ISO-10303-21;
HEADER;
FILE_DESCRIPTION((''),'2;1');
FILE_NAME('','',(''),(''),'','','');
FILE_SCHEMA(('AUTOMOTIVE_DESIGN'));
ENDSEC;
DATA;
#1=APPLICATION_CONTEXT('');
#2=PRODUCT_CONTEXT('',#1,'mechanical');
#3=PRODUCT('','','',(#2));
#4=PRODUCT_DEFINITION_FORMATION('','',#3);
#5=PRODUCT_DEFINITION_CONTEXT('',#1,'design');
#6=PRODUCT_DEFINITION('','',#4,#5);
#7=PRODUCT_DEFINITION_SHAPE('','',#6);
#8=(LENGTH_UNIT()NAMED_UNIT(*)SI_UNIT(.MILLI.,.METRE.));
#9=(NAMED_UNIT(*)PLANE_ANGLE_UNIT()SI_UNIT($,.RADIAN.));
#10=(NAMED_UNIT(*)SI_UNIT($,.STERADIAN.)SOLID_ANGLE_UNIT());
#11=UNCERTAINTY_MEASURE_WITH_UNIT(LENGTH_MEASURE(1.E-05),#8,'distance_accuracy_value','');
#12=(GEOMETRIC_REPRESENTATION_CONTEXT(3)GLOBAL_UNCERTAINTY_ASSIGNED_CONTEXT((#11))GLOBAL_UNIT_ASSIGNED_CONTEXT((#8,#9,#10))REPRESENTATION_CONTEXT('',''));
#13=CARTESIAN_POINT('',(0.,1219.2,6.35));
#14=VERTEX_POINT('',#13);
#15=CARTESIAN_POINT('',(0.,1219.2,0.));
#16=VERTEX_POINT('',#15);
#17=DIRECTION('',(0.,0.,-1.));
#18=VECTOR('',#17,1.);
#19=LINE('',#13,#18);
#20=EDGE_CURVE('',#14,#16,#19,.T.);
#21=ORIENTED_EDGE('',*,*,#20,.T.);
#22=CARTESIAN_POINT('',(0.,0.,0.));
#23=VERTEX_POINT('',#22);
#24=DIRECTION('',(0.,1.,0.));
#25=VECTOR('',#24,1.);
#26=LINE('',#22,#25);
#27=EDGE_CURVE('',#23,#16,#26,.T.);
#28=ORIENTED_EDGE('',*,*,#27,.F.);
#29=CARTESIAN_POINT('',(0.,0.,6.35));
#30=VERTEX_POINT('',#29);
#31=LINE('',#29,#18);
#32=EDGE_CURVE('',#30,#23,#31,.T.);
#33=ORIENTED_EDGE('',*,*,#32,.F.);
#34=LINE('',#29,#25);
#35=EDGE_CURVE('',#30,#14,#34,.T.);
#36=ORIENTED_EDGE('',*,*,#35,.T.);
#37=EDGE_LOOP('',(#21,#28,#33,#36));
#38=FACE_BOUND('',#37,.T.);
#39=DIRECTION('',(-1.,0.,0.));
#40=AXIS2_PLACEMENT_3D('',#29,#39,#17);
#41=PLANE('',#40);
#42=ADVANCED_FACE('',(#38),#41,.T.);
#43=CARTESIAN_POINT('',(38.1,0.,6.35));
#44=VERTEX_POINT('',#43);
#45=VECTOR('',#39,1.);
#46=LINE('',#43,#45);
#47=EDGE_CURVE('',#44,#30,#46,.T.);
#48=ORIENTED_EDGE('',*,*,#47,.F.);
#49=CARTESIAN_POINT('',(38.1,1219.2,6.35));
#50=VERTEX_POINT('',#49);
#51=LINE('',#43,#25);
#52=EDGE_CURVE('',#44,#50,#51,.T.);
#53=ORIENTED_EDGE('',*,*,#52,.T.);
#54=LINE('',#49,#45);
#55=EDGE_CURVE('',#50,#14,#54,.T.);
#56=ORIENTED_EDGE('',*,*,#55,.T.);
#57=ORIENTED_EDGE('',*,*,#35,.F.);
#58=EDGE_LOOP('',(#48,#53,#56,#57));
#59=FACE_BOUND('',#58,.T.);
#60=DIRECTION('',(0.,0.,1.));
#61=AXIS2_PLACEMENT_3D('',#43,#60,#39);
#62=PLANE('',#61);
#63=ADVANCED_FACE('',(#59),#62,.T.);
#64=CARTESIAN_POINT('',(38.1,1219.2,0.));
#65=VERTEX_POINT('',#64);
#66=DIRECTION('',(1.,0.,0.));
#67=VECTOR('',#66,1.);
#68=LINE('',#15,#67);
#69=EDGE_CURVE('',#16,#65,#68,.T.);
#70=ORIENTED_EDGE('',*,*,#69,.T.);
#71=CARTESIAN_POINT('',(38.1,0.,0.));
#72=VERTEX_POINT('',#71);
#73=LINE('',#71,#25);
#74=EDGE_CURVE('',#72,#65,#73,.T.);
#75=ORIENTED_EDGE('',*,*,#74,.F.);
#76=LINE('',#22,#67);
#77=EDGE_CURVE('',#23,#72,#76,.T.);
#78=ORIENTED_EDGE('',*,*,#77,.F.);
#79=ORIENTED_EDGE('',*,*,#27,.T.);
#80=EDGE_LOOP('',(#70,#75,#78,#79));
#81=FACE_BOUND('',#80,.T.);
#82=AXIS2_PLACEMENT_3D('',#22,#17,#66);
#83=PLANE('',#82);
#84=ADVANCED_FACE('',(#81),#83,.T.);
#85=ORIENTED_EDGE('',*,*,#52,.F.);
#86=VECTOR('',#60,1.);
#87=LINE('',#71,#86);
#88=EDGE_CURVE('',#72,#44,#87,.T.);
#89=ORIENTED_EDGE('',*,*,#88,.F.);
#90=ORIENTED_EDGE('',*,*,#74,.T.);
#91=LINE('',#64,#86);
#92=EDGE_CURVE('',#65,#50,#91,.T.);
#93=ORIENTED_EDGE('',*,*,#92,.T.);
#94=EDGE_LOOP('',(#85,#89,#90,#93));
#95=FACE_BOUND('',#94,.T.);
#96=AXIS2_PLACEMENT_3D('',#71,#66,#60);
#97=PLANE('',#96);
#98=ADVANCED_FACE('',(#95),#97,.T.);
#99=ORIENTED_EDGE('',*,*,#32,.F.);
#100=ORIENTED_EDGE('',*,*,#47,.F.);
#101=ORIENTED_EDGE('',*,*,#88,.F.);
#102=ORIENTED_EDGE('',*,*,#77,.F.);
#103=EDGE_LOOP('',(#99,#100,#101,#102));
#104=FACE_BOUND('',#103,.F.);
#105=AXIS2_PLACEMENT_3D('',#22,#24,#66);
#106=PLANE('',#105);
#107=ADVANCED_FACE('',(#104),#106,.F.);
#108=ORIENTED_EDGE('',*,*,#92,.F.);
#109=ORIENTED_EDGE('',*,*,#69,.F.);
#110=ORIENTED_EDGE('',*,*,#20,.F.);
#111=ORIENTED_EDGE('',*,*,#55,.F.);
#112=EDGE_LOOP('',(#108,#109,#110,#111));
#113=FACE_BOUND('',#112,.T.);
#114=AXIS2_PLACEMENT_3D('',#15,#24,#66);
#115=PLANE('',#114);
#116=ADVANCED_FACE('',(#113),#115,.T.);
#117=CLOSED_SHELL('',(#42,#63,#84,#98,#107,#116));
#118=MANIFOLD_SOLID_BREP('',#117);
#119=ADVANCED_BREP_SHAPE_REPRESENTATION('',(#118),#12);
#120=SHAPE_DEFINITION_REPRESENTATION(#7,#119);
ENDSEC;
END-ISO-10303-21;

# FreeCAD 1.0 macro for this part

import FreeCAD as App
import Part
import Sketcher
Q = App.Units.Quantity

doc = App.newDocument("Part")
body = doc.addObject("PartDesign::Body", "Body")

sketch1 = body.newObject("Sketcher::SketchObject", "Sketch")
sketch1.AttachmentSupport = (doc.getObject("XZ_Plane"), [""])
sketch1.MapMode = "FlatFace"
sketch1.addGeometry([
    Part.LineSegment(App.Vector(38, 0, 0), App.Vector(0, 0, 0)),
    Part.LineSegment(App.Vector(0, 0, 0), App.Vector(0, 6, 0)),
    Part.LineSegment(App.Vector(0, 6, 0), App.Vector(38, 6, 0)),
    Part.LineSegment(App.Vector(38, 6, 0), App.Vector(38, 0, 0)),
], False)
sketch1.addConstraint([
    Sketcher.Constraint("Coincident", 0, 2, 1, 1),
    Sketcher.Constraint("Coincident", 1, 2, 2, 1),
    Sketcher.Constraint("Coincident", 2, 2, 3, 1),
    Sketcher.Constraint("Coincident", 3, 2, 0, 1),
    Sketcher.Constraint("Horizontal", 0),
    Sketcher.Constraint("Vertical", 1),
    Sketcher.Constraint("Horizontal", 2),
    Sketcher.Constraint("Vertical", 3),
    Sketcher.Constraint("Coincident", 0, 2, -1, 1),
    Sketcher.Constraint("DistanceX", 0, 2, 0, 1, Q("1.5 in")),
    Sketcher.Constraint("DistanceY", 1, 1, 1, 2, Q("0.25 in")),
])
pad1 = body.newObject("PartDesign::Pad", "Pad")
pad1.Profile = sketch1
pad1.Length = Q("48 in")
pad1.Reversed = True

doc.recompute()
